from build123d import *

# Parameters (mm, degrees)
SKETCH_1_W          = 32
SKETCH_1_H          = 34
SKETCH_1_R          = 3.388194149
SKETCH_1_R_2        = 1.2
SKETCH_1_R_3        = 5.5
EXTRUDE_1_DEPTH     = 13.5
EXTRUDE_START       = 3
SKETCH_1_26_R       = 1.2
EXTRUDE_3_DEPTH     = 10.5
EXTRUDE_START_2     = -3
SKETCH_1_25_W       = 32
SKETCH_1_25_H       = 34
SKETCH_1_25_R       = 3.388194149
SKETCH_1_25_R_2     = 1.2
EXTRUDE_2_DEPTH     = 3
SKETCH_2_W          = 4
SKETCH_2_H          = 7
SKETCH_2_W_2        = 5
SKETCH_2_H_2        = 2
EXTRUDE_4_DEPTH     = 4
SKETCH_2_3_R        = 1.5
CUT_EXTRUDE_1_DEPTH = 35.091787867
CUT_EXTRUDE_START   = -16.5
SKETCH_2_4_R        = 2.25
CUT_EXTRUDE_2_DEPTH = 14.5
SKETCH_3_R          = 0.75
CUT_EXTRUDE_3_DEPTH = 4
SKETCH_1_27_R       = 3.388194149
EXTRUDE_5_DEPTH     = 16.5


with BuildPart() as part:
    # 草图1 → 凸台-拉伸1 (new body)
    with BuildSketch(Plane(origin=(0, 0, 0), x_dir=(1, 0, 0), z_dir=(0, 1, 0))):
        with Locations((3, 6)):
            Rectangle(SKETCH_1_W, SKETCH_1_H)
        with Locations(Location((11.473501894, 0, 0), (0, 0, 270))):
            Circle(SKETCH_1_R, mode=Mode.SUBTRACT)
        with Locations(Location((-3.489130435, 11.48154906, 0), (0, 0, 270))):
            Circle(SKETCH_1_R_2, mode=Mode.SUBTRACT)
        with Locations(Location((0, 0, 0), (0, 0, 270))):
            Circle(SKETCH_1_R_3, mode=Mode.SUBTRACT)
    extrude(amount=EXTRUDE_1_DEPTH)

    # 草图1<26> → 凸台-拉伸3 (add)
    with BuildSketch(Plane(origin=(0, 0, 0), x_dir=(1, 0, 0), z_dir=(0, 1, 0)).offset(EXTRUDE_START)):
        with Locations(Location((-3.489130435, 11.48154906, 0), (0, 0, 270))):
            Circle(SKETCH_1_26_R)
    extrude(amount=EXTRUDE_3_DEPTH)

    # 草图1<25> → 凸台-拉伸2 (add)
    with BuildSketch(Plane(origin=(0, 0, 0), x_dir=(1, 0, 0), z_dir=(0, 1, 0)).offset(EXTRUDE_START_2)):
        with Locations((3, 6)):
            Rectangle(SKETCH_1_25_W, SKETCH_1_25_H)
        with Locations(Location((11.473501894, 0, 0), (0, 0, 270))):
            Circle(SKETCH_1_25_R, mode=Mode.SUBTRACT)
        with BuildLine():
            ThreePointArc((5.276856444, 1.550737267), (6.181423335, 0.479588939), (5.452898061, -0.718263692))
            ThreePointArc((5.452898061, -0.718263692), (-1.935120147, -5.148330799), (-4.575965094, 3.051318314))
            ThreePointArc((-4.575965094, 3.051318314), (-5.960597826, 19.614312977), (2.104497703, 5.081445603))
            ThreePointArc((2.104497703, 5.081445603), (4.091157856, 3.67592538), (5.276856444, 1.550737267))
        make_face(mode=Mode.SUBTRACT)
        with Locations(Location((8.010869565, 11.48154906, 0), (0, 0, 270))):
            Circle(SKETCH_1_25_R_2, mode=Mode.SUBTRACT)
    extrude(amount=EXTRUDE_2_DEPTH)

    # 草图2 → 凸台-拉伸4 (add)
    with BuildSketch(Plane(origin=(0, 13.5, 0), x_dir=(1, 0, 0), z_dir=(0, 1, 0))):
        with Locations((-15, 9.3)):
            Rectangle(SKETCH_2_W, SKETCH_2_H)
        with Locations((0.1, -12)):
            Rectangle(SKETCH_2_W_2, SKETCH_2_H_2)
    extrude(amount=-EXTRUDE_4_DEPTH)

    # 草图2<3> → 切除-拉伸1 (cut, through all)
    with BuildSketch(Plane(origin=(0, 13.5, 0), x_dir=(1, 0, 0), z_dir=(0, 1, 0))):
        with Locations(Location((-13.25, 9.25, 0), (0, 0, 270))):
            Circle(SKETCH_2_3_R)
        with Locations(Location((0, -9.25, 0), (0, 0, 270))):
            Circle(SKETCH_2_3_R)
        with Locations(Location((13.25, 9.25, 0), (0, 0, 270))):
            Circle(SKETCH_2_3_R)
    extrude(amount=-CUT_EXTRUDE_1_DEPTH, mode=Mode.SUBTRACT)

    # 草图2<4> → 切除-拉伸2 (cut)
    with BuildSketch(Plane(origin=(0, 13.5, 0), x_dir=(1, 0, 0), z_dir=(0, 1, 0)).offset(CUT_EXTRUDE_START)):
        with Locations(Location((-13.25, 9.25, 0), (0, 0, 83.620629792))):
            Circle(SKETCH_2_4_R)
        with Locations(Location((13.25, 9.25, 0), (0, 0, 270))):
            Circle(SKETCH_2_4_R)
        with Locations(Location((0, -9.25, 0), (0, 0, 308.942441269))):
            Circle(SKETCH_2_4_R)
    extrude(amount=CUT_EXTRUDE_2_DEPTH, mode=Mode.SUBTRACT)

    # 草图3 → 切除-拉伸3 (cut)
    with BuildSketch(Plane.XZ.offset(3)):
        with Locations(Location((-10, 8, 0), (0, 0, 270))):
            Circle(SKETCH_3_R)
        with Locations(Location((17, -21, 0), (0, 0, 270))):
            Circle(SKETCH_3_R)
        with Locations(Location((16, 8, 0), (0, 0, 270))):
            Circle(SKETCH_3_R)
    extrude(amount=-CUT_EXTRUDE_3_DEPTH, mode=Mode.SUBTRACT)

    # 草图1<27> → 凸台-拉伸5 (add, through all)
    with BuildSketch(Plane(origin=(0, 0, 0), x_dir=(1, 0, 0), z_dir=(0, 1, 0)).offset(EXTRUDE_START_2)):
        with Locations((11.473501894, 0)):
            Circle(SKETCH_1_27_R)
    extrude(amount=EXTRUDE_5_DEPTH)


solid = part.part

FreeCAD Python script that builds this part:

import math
import FreeCAD as App
import Part
import Sketcher

V = App.Vector

doc = App.newDocument("Part")
params = doc.addObject("Spreadsheet::Sheet", "Params")
for row, (alias, value) in enumerate([
    ("sketch1_diameter", "11 mm"),
    ("sketch1_diameter2", "2.4 mm"),
    ("sketch1_width", "32 mm"),
    ("sketch1_height", "34 mm"),
    ("pad1_length", "13.5 mm"),
    ("sketch2_diameter", "2.4 mm"),
    ("pad2_length", "10.5 mm"),
    ("sketch3_diameter", "2.4 mm"),
    ("sketch3_radius", "5.5 mm"),
    ("sketch3_radius2", "8.5 mm"),
    ("sketch3_width", "32 mm"),
    ("sketch3_height", "34 mm"),
    ("pad3_length", "3 mm"),
    ("sketch4_width", "4 mm"),
    ("sketch4_width2", "5 mm"),
    ("sketch4_height", "7 mm"),
    ("sketch4_height2", "2 mm"),
    ("pad4_length", "4 mm"),
    ("sketch5_diameter", "3 mm"),
    ("sketch6_diameter", "4.5 mm"),
    ("pocket2_length", "14.5 mm"),
    ("sketch7_diameter", "1.5 mm"),
    ("pocket3_length", "4 mm"),
    ("pad5_length", "16.5 mm"),
], start=1):
    params.set(f"A{row}", alias)
    params.set(f"B{row}", "=" + value)
    params.setAlias(f"B{row}", alias)

body = doc.addObject("PartDesign::Body", "Body")

sketch1 = doc.addObject("Sketcher::SketchObject", "Sketch")
body.addObject(sketch1)
sketch1.AttachmentSupport = (doc.XZ_Plane, [""])
sketch1.MapMode = "FlatFace"
sketch1.addGeometry([
    Part.LineSegment(V(-13, -23, 0), V(-13, 11, 0)),
    Part.LineSegment(V(-13, 11, 0), V(19, 11, 0)),
    Part.LineSegment(V(19, 11, 0), V(19, -23, 0)),
    Part.LineSegment(V(19, -23, 0), V(-13, -23, 0)),
    Part.Circle(V(0, 0, 0), V(0, 0, 1), 5.5),
    Part.Circle(V(11.5, 0, 0), V(0, 0, 1), 3.4),
    Part.Circle(V(-3.5, -11.5, 0), V(0, 0, 1), 1.2),
], False)
sketch1.addConstraint([
    Sketcher.Constraint("Coincident", 0, 2, 1, 1),
    Sketcher.Constraint("Coincident", 1, 2, 2, 1),
    Sketcher.Constraint("Coincident", 2, 2, 3, 1),
    Sketcher.Constraint("Coincident", 3, 2, 0, 1),
    Sketcher.Constraint("Vertical", 0),
    Sketcher.Constraint("Horizontal", 1),
    Sketcher.Constraint("Vertical", 2),
    Sketcher.Constraint("Horizontal", 3),
    Sketcher.Constraint("Coincident", 4, 3, -1, 1),
    Sketcher.Constraint("PointOnObject", 5, 3, -1),
    Sketcher.Constraint("Diameter", 4, 11.0),
    Sketcher.Constraint("Diameter", 6, 2.4),
    Sketcher.Constraint("DistanceX", 1, 1, 1, 2, 32.0),
    Sketcher.Constraint("DistanceY", 0, 1, 0, 2, 34.0),
    Sketcher.Constraint("DistanceX", 0, 2, -1, 1, 13.0),
    Sketcher.Constraint("DistanceY", -1, 1, 0, 2, 11.0),
    Sketcher.Constraint("Diameter", 5, 6.776388),
    Sketcher.Constraint("DistanceX", -1, 1, 5, 3, 11.473502),
    Sketcher.Constraint("DistanceX", 6, 3, -1, 1, 3.48913),
    Sketcher.Constraint("DistanceY", 6, 3, -1, 1, 11.481549),
])
sketch1.setExpression("Constraints[10]", "Params.sketch1_diameter")
sketch1.setExpression("Constraints[11]", "Params.sketch1_diameter2")
sketch1.setExpression("Constraints[12]", "Params.sketch1_width")
sketch1.setExpression("Constraints[13]", "Params.sketch1_height")
pad1 = doc.addObject("PartDesign::Pad", "Pad")
body.addObject(pad1)
pad1.Profile = sketch1
pad1.setExpression("Length", "Params.pad1_length")
pad1.Reversed = True

sketch2 = doc.addObject("Sketcher::SketchObject", "Sketch001")
body.addObject(sketch2)
sketch2.AttachmentSupport = (doc.XZ_Plane, [""])
sketch2.MapMode = "FlatFace"
sketch2.AttachmentOffset = App.Placement(V(0, 0, -3), App.Rotation())
sketch2.addGeometry(Part.Circle(V(-3.5, -11.5, 0), V(0, 0, 1), 1.2), False)
sketch2.addConstraint([
    Sketcher.Constraint("Diameter", 0, 2.4),
    Sketcher.Constraint("DistanceX", 0, 3, -1, 1, 3.48913),
    Sketcher.Constraint("DistanceY", 0, 3, -1, 1, 11.481549),
])
sketch2.setExpression("Constraints[0]", "Params.sketch2_diameter")
pad2 = doc.addObject("PartDesign::Pad", "Pad001")
body.addObject(pad2)
pad2.Profile = sketch2
pad2.setExpression("Length", "Params.pad2_length")
pad2.Reversed = True

sketch3 = doc.addObject("Sketcher::SketchObject", "Sketch002")
body.addObject(sketch3)
sketch3.AttachmentSupport = (doc.XZ_Plane, [""])
sketch3.MapMode = "FlatFace"
sketch3.AttachmentOffset = App.Placement(V(0, 0, 3), App.Rotation())
sketch3.addGeometry([
    Part.LineSegment(V(-13, -23, 0), V(-13, 11, 0)),
    Part.LineSegment(V(-13, 11, 0), V(19, 11, 0)),
    Part.LineSegment(V(19, 11, 0), V(19, -23, 0)),
    Part.LineSegment(V(19, -23, 0), V(-13, -23, 0)),
    Part.ArcOfCircle(Part.Circle(V(0, 0, 0), V(0, 0, 1), 5.5), math.radians(-68), math.radians(-16)),
    Part.ArcOfCircle(Part.Circle(V(5, -0.4, 0), V(0, 0, 1), 1.2), math.radians(-76), math.radians(67)),
    Part.ArcOfCircle(Part.Circle(V(0, 0, 0), V(0, 0, 1), 5.5), math.radians(8), math.radians(214)),
    Part.ArcOfCircle(Part.Circle(V(-3.5, -11.5, 0), V(0, 0, 1), 8.5), math.radians(97), math.radians(409)),
    Part.Circle(V(11.5, 0, 0), V(0, 0, 1), 3.4),
    Part.Circle(V(8, -11.5, 0), V(0, 0, 1), 1.2),
], False)
sketch3.addConstraint([
    Sketcher.Constraint("Coincident", 0, 2, 1, 1),
    Sketcher.Constraint("Coincident", 1, 2, 2, 1),
    Sketcher.Constraint("Coincident", 2, 2, 3, 1),
    Sketcher.Constraint("Coincident", 3, 2, 0, 1),
    Sketcher.Constraint("Coincident", 4, 2, 5, 1),
    Sketcher.Constraint("Coincident", 5, 2, 6, 1),
    Sketcher.Constraint("Coincident", 6, 2, 7, 1),
    Sketcher.Constraint("Coincident", 7, 2, 4, 1),
    Sketcher.Constraint("Vertical", 0),
    Sketcher.Constraint("Horizontal", 1),
    Sketcher.Constraint("Vertical", 2),
    Sketcher.Constraint("Horizontal", 3),
    Sketcher.Constraint("Coincident", 4, 3, -1, 1),
    Sketcher.Constraint("Coincident", 6, 3, -1, 1),
    Sketcher.Constraint("Equal", 4, 6),
    Sketcher.Constraint("Equal", 5, 9),
    Sketcher.Constraint("PointOnObject", 8, 3, -1),
    Sketcher.Constraint("Horizontal", 7, 3, 9, 3),
    Sketcher.Constraint("Diameter", 9, 2.4),
    Sketcher.Constraint("Radius", 4, 5.5),
    Sketcher.Constraint("Radius", 7, 8.5),
    Sketcher.Constraint("DistanceX", 1, 1, 1, 2, 32.0),
    Sketcher.Constraint("DistanceY", 0, 1, 0, 2, 34.0),
    Sketcher.Constraint("DistanceX", 0, 2, -1, 1, 13.0),
    Sketcher.Constraint("DistanceY", -1, 1, 0, 2, 11.0),
    Sketcher.Constraint("DistanceX", 7, 3, 9, 3, 11.5),
    Sketcher.Constraint("Diameter", 8, 6.776388),
    Sketcher.Constraint("DistanceY", 4, 2, 5, 2, 2.269001),
    Sketcher.Constraint("DistanceX", -1, 1, 8, 3, 11.473502),
    Sketcher.Constraint("DistanceX", -1, 1, 5, 2, 5.452898),
    Sketcher.Constraint("DistanceX", 7, 2, 5, 2, 3.3484),
    Sketcher.Constraint("DistanceX", 7, 3, -1, 1, 3.48913),
])
sketch3.setExpression("Constraints[18]", "Params.sketch3_diameter")
sketch3.setExpression("Constraints[19]", "Params.sketch3_radius")
sketch3.setExpression("Constraints[20]", "Params.sketch3_radius2")
sketch3.setExpression("Constraints[21]", "Params.sketch3_width")
sketch3.setExpression("Constraints[22]", "Params.sketch3_height")
pad3 = doc.addObject("PartDesign::Pad", "Pad002")
body.addObject(pad3)
pad3.Profile = sketch3
pad3.setExpression("Length", "Params.pad3_length")
pad3.Reversed = True

sketch4 = doc.addObject("Sketcher::SketchObject", "Sketch003")
body.addObject(sketch4)
sketch4.AttachmentSupport = (doc.XZ_Plane, [""])
sketch4.MapMode = "FlatFace"
sketch4.AttachmentOffset = App.Placement(V(0, 0, -13.5), App.Rotation())
sketch4.addGeometry([
    Part.LineSegment(V(-17, -12.8, 0), V(-17, -5.8, 0)),
    Part.LineSegment(V(-17, -5.8, 0), V(-13, -5.8, 0)),
    Part.LineSegment(V(-13, -5.8, 0), V(-13, -12.8, 0)),
    Part.LineSegment(V(-13, -12.8, 0), V(-17, -12.8, 0)),
    Part.LineSegment(V(-2.4, 11, 0), V(-2.4, 13, 0)),
    Part.LineSegment(V(-2.4, 13, 0), V(2.6, 13, 0)),
    Part.LineSegment(V(2.6, 13, 0), V(2.6, 11, 0)),
    Part.LineSegment(V(2.6, 11, 0), V(-2.4, 11, 0)),
], False)
sketch4.addConstraint([
    Sketcher.Constraint("Coincident", 0, 2, 1, 1),
    Sketcher.Constraint("Coincident", 1, 2, 2, 1),
    Sketcher.Constraint("Coincident", 2, 2, 3, 1),
    Sketcher.Constraint("Coincident", 3, 2, 0, 1),
    Sketcher.Constraint("Coincident", 4, 2, 5, 1),
    Sketcher.Constraint("Coincident", 5, 2, 6, 1),
    Sketcher.Constraint("Coincident", 6, 2, 7, 1),
    Sketcher.Constraint("Coincident", 7, 2, 4, 1),
    Sketcher.Constraint("Vertical", 0),
    Sketcher.Constraint("Horizontal", 1),
    Sketcher.Constraint("Vertical", 2),
    Sketcher.Constraint("Horizontal", 3),
    Sketcher.Constraint("Vertical", 4),
    Sketcher.Constraint("Horizontal", 5),
    Sketcher.Constraint("Vertical", 6),
    Sketcher.Constraint("Horizontal", 7),
    Sketcher.Constraint("DistanceX", 1, 1, 1, 2, 4.0),
    Sketcher.Constraint("DistanceX", 5, 1, 5, 2, 5.0),
    Sketcher.Constraint("DistanceY", 0, 1, 0, 2, 7.0),
    Sketcher.Constraint("DistanceY", 4, 1, 4, 2, 2.0),
    Sketcher.Constraint("DistanceX", 0, 2, -1, 1, 17.0),
    Sketcher.Constraint("DistanceY", -1, 1, 4, 2, 13.0),
    Sketcher.Constraint("DistanceY", 0, 2, -1, 1, 5.8),
    Sketcher.Constraint("DistanceX", 4, 2, -1, 1, 2.4),
])
sketch4.setExpression("Constraints[16]", "Params.sketch4_width")
sketch4.setExpression("Constraints[17]", "Params.sketch4_width2")
sketch4.setExpression("Constraints[18]", "Params.sketch4_height")
sketch4.setExpression("Constraints[19]", "Params.sketch4_height2")
pad4 = doc.addObject("PartDesign::Pad", "Pad003")
body.addObject(pad4)
pad4.Profile = sketch4
pad4.setExpression("Length", "Params.pad4_length")

sketch5 = doc.addObject("Sketcher::SketchObject", "Sketch004")
body.addObject(sketch5)
sketch5.AttachmentSupport = (doc.XZ_Plane, [""])
sketch5.MapMode = "FlatFace"
sketch5.AttachmentOffset = App.Placement(V(0, 0, -13.5), App.Rotation())
sketch5.addGeometry([
    Part.Circle(V(-13.2, -9.2, 0), V(0, 0, 1), 1.5),
    Part.Circle(V(0, 9.2, 0), V(0, 0, 1), 1.5),
    Part.Circle(V(13.2, -9.2, 0), V(0, 0, 1), 1.5),
], False)
sketch5.addConstraint([
    Sketcher.Constraint("Equal", 0, 1),
    Sketcher.Constraint("Equal", 1, 2),
    Sketcher.Constraint("Symmetric", 0, 3, 2, 3, -2),
    Sketcher.Constraint("PointOnObject", 1, 3, -2),
    Sketcher.Constraint("Diameter", 0, 3.0),
    Sketcher.Constraint("DistanceY", 0, 3, 1, 3, 18.5),
    Sketcher.Constraint("DistanceX", 0, 3, 2, 3, 26.5),
    Sketcher.Constraint("DistanceY", 0, 3, -1, 1, 9.25),
])
sketch5.setExpression("Constraints[4]", "Params.sketch5_diameter")
pocket1 = doc.addObject("PartDesign::Pocket", "Pocket")
body.addObject(pocket1)
pocket1.Profile = sketch5
pocket1.Type = "ThroughAll"
pocket1.Reversed = True

sketch6 = doc.addObject("Sketcher::SketchObject", "Sketch005")
body.addObject(sketch6)
sketch6.AttachmentSupport = (doc.XZ_Plane, [""])
sketch6.MapMode = "FlatFace"
sketch6.AttachmentOffset = App.Placement(V(0, 0, 3), App.Rotation())
sketch6.addGeometry([
    Part.Circle(V(-13.2, -9.2, 0), V(0, 0, 1), 2.2),
    Part.Circle(V(13.2, -9.2, 0), V(0, 0, 1), 2.2),
    Part.Circle(V(0, 9.2, 0), V(0, 0, 1), 2.2),
], False)
sketch6.addConstraint([
    Sketcher.Constraint("Equal", 0, 1),
    Sketcher.Constraint("Equal", 1, 2),
    Sketcher.Constraint("Symmetric", 0, 3, 1, 3, -2),
    Sketcher.Constraint("PointOnObject", 2, 3, -2),
    Sketcher.Constraint("Diameter", 0, 4.5),
    Sketcher.Constraint("DistanceX", 0, 3, 1, 3, 26.5),
    Sketcher.Constraint("DistanceY", 0, 3, 2, 3, 18.5),
    Sketcher.Constraint("DistanceY", 0, 3, -1, 1, 9.25),
])
sketch6.setExpression("Constraints[4]", "Params.sketch6_diameter")
pocket2 = doc.addObject("PartDesign::Pocket", "Pocket001")
body.addObject(pocket2)
pocket2.Profile = sketch6
pocket2.setExpression("Length", "Params.pocket2_length")

sketch7 = doc.addObject("Sketcher::SketchObject", "Sketch006")
body.addObject(sketch7)
sketch7.AttachmentSupport = (doc.XZ_Plane, [""])
sketch7.MapMode = "FlatFace"
sketch7.AttachmentOffset = App.Placement(V(0, 0, 3), App.Rotation())
sketch7.addGeometry([
    Part.Circle(V(-10, 8, 0), V(0, 0, 1), 0.8),
    Part.Circle(V(17, -21, 0), V(0, 0, 1), 0.8),
    Part.Circle(V(16, 8, 0), V(0, 0, 1), 0.8),
], False)
sketch7.addConstraint([
    Sketcher.Constraint("Equal", 0, 1),
    Sketcher.Constraint("Equal", 1, 2),
    Sketcher.Constraint("Horizontal", 0, 3, 2, 3),
    Sketcher.Constraint("Diameter", 0, 1.5),
    Sketcher.Constraint("DistanceX", 0, 3, -1, 1, 10.0),
    Sketcher.Constraint("DistanceY", -1, 1, 0, 3, 8.0),
    Sketcher.Constraint("DistanceX", -1, 1, 1, 3, 17.0),
    Sketcher.Constraint("DistanceY", 1, 3, -1, 1, 21.0),
    Sketcher.Constraint("DistanceX", -1, 1, 2, 3, 16.0),
])
sketch7.setExpression("Constraints[3]", "Params.sketch7_diameter")
pocket3 = doc.addObject("PartDesign::Pocket", "Pocket002")
body.addObject(pocket3)
pocket3.Profile = sketch7
pocket3.setExpression("Length", "Params.pocket3_length")

sketch8 = doc.addObject("Sketcher::SketchObject", "Sketch007")
body.addObject(sketch8)
sketch8.AttachmentSupport = (doc.XZ_Plane, [""])
sketch8.MapMode = "FlatFace"
sketch8.AttachmentOffset = App.Placement(V(0, 0, 3), App.Rotation())
sketch8.addGeometry(Part.Circle(V(11.5, 0, 0), V(0, 0, 1), 3.4), False)
sketch8.addConstraint([
    Sketcher.Constraint("PointOnObject", 0, 3, -1),
    Sketcher.Constraint("Diameter", 0, 6.776388),
    Sketcher.Constraint("DistanceX", -1, 1, 0, 3, 11.473502),
])
pad5 = doc.addObject("PartDesign::Pad", "Pad004")
body.addObject(pad5)
pad5.Profile = sketch8
pad5.setExpression("Length", "Params.pad5_length")
pad5.Reversed = True

doc.recompute()
